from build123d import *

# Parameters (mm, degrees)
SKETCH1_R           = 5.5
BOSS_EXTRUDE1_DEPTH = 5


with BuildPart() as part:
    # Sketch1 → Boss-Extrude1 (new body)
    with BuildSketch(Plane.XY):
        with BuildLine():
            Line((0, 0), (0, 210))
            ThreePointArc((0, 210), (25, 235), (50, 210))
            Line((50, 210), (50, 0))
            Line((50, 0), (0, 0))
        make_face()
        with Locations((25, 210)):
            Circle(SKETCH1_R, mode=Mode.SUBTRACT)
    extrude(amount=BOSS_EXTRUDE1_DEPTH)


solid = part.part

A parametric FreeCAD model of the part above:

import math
import FreeCAD as App
import Part
import Sketcher
from FreeCAD import Vector

doc = App.newDocument("Part")
body = doc.addObject("PartDesign::Body", "Body")

sketch1 = body.newObject("Sketcher::SketchObject", "Sketch")
sketch1.AttachmentSupport = (doc.getObject("XY_Plane"), [""])
sketch1.MapMode = "FlatFace"
sketch1.addGeometry([
    Part.LineSegment(Vector(0, 210, 0), Vector(0, 0, 0)),
    Part.LineSegment(Vector(0, 0, 0), Vector(50, 0, 0)),
    Part.LineSegment(Vector(50, 0, 0), Vector(50, 210, 0)),
    Part.ArcOfCircle(Part.Circle(Vector(25, 210, 0), Vector(0, 0, 1), 25), math.radians(0), math.radians(180)),
    Part.Circle(Vector(25, 210, 0), Vector(0, 0, 1), 6),
], False)
sketch1.addConstraint([
    Sketcher.Constraint("Coincident", 0, 2, 1, 1),
    Sketcher.Constraint("Coincident", 1, 2, 2, 1),
    Sketcher.Constraint("Tangent", 2, 2, 3, 1),
    Sketcher.Constraint("Tangent", 3, 2, 0, 1),
    Sketcher.Constraint("Vertical", 0),
    Sketcher.Constraint("Horizontal", 1),
    Sketcher.Constraint("Vertical", 2),
    Sketcher.Constraint("Coincident", 0, 2, -1, 1),
    Sketcher.Constraint("Coincident", 4, 3, 3, 3),
    Sketcher.Constraint("Diameter", 4, 11.0),
    Sketcher.Constraint("Radius", 3, 25.0),
    Sketcher.Constraint("DistanceY", 0, 2, 0, 1, 210.0),
])
pad1 = body.newObject("PartDesign::Pad", "Pad")
pad1.Profile = sketch1
pad1.Length = 5

doc.recompute()
